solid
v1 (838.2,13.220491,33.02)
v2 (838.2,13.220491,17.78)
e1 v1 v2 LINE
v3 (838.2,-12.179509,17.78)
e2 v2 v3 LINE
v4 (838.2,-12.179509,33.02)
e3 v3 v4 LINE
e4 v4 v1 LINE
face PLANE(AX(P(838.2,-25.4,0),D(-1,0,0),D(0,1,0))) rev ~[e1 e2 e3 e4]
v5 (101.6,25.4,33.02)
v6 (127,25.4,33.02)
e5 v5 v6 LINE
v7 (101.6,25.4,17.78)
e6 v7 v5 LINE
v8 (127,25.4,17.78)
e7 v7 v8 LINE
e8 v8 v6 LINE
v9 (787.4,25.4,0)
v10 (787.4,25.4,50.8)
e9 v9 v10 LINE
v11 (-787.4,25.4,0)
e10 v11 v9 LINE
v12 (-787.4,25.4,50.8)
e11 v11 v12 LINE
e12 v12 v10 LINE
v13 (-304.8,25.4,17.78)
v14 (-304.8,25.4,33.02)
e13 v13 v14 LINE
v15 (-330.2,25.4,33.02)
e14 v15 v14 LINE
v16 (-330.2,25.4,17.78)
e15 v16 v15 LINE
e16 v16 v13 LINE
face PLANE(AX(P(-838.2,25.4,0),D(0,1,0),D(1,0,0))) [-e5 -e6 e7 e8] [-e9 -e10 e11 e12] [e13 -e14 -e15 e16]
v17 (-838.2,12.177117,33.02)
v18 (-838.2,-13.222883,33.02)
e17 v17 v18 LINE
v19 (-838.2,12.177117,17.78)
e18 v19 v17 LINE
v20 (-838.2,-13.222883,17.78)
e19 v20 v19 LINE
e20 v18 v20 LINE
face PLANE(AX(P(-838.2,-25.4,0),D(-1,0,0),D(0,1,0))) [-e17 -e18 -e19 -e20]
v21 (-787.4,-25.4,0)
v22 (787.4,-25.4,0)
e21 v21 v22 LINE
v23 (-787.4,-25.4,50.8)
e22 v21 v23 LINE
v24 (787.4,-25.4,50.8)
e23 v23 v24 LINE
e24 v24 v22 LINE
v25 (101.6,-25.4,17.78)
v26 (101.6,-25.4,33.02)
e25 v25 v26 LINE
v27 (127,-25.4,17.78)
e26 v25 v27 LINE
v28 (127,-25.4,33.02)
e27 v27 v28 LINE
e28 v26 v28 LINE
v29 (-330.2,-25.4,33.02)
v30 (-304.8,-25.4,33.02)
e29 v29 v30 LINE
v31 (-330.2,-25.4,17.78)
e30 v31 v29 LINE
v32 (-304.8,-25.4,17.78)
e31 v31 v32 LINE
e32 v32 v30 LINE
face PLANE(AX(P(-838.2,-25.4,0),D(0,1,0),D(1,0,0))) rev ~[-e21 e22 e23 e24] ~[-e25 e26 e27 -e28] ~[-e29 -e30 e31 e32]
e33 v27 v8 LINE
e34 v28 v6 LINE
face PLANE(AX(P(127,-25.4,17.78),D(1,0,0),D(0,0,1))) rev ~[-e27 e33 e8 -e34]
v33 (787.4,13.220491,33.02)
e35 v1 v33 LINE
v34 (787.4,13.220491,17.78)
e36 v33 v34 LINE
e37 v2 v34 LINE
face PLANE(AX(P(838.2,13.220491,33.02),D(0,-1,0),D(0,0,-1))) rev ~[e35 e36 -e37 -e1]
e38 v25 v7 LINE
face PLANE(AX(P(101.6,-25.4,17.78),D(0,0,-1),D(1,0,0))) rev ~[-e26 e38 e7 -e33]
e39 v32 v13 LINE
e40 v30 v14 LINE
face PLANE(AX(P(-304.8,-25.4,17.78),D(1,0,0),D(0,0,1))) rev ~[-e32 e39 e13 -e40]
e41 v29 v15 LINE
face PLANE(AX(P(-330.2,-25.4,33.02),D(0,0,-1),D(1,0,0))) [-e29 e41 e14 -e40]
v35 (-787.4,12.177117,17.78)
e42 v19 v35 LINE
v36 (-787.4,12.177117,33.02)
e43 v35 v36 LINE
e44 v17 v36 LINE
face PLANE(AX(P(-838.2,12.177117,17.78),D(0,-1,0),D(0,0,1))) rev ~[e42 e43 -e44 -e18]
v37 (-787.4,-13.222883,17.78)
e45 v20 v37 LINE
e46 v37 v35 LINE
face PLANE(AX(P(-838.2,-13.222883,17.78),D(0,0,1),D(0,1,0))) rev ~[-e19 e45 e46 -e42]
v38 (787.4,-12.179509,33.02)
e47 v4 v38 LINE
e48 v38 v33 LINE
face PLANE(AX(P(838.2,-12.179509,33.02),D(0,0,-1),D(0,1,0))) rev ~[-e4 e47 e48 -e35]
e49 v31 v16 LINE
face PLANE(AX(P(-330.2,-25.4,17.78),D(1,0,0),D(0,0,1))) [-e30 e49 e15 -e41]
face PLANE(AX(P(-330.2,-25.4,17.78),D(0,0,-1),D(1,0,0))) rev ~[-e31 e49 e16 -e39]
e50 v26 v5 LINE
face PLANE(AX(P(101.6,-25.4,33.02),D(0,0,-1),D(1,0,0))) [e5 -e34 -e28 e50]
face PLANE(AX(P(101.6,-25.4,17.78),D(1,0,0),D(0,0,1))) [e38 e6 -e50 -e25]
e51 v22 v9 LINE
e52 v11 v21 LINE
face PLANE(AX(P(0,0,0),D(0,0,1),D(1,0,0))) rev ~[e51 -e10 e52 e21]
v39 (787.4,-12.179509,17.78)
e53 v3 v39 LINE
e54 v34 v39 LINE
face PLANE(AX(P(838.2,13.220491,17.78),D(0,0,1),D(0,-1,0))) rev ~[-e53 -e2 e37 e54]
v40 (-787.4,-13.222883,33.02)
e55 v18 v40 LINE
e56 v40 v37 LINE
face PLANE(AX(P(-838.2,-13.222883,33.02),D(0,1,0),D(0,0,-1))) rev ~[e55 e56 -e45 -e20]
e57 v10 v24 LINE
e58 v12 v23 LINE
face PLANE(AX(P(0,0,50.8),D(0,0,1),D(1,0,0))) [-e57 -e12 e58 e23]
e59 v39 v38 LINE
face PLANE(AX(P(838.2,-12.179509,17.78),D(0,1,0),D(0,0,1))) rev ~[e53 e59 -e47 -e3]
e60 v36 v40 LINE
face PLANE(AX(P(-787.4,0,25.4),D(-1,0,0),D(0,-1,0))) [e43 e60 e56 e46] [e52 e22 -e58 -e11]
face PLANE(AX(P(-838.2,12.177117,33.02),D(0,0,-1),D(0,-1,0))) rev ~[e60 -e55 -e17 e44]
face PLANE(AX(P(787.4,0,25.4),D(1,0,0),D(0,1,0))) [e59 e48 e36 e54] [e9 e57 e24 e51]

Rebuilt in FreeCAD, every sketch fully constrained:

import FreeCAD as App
import Part
import Sketcher
Q = App.Units.Quantity


def add_polygon(sketch, points):
    """Adds a closed chain of lines whose ends are joined by coincident constraints."""
    first, n = sketch.GeometryCount, len(points)
    for a, b in zip(points, points[1:] + points[:1]):
        sketch.addGeometry(Part.LineSegment(App.Vector(*a, 0), App.Vector(*b, 0)), False)
    for i in range(n):
        sketch.addConstraint(Sketcher.Constraint("Coincident", first + i, 2, first + (i + 1) % n, 1))

doc = App.newDocument("Part")
body = doc.addObject("PartDesign::Body", "Body")

# Sketch on XY plane
sketch1 = body.newObject("Sketcher::SketchObject", "Sketch")
sketch1.AttachmentSupport = (doc.getObject("XY_Plane"), [""])
sketch1.MapMode = "FlatFace"
add_polygon(sketch1, [(-838, 25), (-838, -25), (838, -25), (838, 25)])  # lines 0-3
sketch1.addConstraint([
    Sketcher.Constraint("Vertical", 0),
    Sketcher.Constraint("Horizontal", 1),
    Sketcher.Constraint("Vertical", 2),
    Sketcher.Constraint("Horizontal", 3),
    Sketcher.Constraint("Symmetric", 0, 2, 2, 2, -1, 1),
    Sketcher.Constraint("DistanceX", 1, 1, 1, 2, Q("66 in")),
    Sketcher.Constraint("DistanceY", 0, 2, 0, 1, Q("2 in")),
])
pad1 = body.newObject("PartDesign::Pad", "Pad")
pad1.Profile = sketch1
pad1.Length = Q("2 in")

# Sketch on YZ plane
sketch2 = body.newObject("Sketcher::SketchObject", "Sketch001")
sketch2.AttachmentSupport = (doc.getObject("YZ_Plane"), [""])
sketch2.MapMode = "FlatFace"
sketch2.AttachmentOffset = App.Placement(App.Vector(0, 0, -33 * 25.4), App.Rotation())
add_polygon(sketch2, [(25, 51), (25, 0), (-25, 0), (-25, 51)])  # lines 0-3
add_polygon(sketch2, [(12, 18), (12, 33), (-13, 33), (-13, 18)])  # lines 4-7
sketch2.addConstraint([
    Sketcher.Constraint("Vertical", 0),
    Sketcher.Constraint("Horizontal", 1),
    Sketcher.Constraint("Vertical", 2),
    Sketcher.Constraint("Horizontal", 3),
    Sketcher.Constraint("Vertical", 4),
    Sketcher.Constraint("Horizontal", 5),
    Sketcher.Constraint("Vertical", 6),
    Sketcher.Constraint("Horizontal", 7),
    Sketcher.Constraint("Symmetric", 0, 2, 1, 2, -1, 1),
    Sketcher.Constraint("Equal", 3, 0),
    Sketcher.Constraint("DistanceX", 1, 2, 1, 1, Q("2 in")),
    Sketcher.Constraint("DistanceX", 5, 2, 5, 1, Q("1 in")),
    Sketcher.Constraint("DistanceY", 4, 1, 4, 2, Q("0.6 in")),
    Sketcher.Constraint("DistanceY", -1, 1, 4, 2, Q("1.3 in")),
    Sketcher.Constraint("DistanceX", -1, 1, 4, 2, Q("12.177117 mm")),
])
pocket1 = body.newObject("PartDesign::Pocket", "Pocket")
pocket1.Profile = sketch2
pocket1.Length = Q("2 in")
pocket1.Reversed = True

# Sketch on YZ plane
sketch3 = body.newObject("Sketcher::SketchObject", "Sketch002")
sketch3.AttachmentSupport = (doc.getObject("YZ_Plane"), [""])
sketch3.MapMode = "FlatFace"
sketch3.AttachmentOffset = App.Placement(App.Vector(0, 0, 33 * 25.4), App.Rotation())
add_polygon(sketch3, [(25, 51), (-25, 51), (-25, 0), (25, 0)])  # lines 0-3
add_polygon(sketch3, [(-12, 18), (-12, 33), (13, 33), (13, 18)])  # lines 4-7
sketch3.addConstraint([
    Sketcher.Constraint("Horizontal", 0),
    Sketcher.Constraint("Vertical", 1),
    Sketcher.Constraint("Horizontal", 2),
    Sketcher.Constraint("Vertical", 3),
    Sketcher.Constraint("Vertical", 4),
    Sketcher.Constraint("Horizontal", 5),
    Sketcher.Constraint("Vertical", 6),
    Sketcher.Constraint("Horizontal", 7),
    Sketcher.Constraint("Symmetric", 1, 2, 2, 2, -1, 1),
    Sketcher.Constraint("Equal", 2, 1),
    Sketcher.Constraint("DistanceX", 0, 2, 0, 1, Q("2 in")),
    Sketcher.Constraint("DistanceX", 5, 1, 5, 2, Q("1 in")),
    Sketcher.Constraint("DistanceY", 4, 1, 4, 2, Q("0.6 in")),
    Sketcher.Constraint("DistanceY", -1, 1, 4, 2, Q("1.3 in")),
    Sketcher.Constraint("DistanceX", 4, 2, -1, 1, Q("12.179509 mm")),
])
pocket2 = body.newObject("PartDesign::Pocket", "Pocket001")
pocket2.Profile = sketch3
pocket2.Length = Q("2 in")

# Sketch on XZ plane
sketch4 = body.newObject("Sketcher::SketchObject", "Sketch003")
sketch4.AttachmentSupport = (doc.getObject("XZ_Plane"), [""])
sketch4.MapMode = "FlatFace"
sketch4.AttachmentOffset = App.Placement(App.Vector(0, 0, 1 * 25.4), App.Rotation())
add_polygon(sketch4, [(-330, 33), (-330, 18), (-305, 18), (-305, 33)])  # lines 0-3
sketch4.addConstraint([
    Sketcher.Constraint("Vertical", 0),
    Sketcher.Constraint("Horizontal", 1),
    Sketcher.Constraint("Vertical", 2),
    Sketcher.Constraint("Horizontal", 3),
    Sketcher.Constraint("DistanceX", 1, 1, 1, 2, Q("1 in")),
    Sketcher.Constraint("DistanceY", 0, 2, 0, 1, Q("0.6 in")),
    Sketcher.Constraint("DistanceX", 0, 2, -1, 1, Q("13 in")),
    Sketcher.Constraint("DistanceY", -1, 1, 0, 2, Q("0.7 in")),
])
pocket3 = body.newObject("PartDesign::Pocket", "Pocket002")
pocket3.Profile = sketch4
pocket3.Length = Q("2 in")

# Sketch on XZ plane
sketch5 = body.newObject("Sketcher::SketchObject", "Sketch004")
sketch5.AttachmentSupport = (doc.getObject("XZ_Plane"), [""])
sketch5.MapMode = "FlatFace"
sketch5.AttachmentOffset = App.Placement(App.Vector(0, 0, 1 * 25.4), App.Rotation())
add_polygon(sketch5, [(102, 33), (102, 18), (127, 18), (127, 33)])  # lines 0-3
sketch5.addConstraint([
    Sketcher.Constraint("Vertical", 0),
    Sketcher.Constraint("Horizontal", 1),
    Sketcher.Constraint("Vertical", 2),
    Sketcher.Constraint("Horizontal", 3),
    Sketcher.Constraint("DistanceX", 1, 1, 1, 2, Q("1 in")),
    Sketcher.Constraint("DistanceY", 0, 2, 0, 1, Q("0.6 in")),
    Sketcher.Constraint("DistanceX", -1, 1, 0, 2, Q("4 in")),
    Sketcher.Constraint("DistanceY", -1, 1, 0, 2, Q("0.7 in")),
])
pocket4 = body.newObject("PartDesign::Pocket", "Pocket003")
pocket4.Profile = sketch5
pocket4.Length = Q("2 in")

doc.recompute()
